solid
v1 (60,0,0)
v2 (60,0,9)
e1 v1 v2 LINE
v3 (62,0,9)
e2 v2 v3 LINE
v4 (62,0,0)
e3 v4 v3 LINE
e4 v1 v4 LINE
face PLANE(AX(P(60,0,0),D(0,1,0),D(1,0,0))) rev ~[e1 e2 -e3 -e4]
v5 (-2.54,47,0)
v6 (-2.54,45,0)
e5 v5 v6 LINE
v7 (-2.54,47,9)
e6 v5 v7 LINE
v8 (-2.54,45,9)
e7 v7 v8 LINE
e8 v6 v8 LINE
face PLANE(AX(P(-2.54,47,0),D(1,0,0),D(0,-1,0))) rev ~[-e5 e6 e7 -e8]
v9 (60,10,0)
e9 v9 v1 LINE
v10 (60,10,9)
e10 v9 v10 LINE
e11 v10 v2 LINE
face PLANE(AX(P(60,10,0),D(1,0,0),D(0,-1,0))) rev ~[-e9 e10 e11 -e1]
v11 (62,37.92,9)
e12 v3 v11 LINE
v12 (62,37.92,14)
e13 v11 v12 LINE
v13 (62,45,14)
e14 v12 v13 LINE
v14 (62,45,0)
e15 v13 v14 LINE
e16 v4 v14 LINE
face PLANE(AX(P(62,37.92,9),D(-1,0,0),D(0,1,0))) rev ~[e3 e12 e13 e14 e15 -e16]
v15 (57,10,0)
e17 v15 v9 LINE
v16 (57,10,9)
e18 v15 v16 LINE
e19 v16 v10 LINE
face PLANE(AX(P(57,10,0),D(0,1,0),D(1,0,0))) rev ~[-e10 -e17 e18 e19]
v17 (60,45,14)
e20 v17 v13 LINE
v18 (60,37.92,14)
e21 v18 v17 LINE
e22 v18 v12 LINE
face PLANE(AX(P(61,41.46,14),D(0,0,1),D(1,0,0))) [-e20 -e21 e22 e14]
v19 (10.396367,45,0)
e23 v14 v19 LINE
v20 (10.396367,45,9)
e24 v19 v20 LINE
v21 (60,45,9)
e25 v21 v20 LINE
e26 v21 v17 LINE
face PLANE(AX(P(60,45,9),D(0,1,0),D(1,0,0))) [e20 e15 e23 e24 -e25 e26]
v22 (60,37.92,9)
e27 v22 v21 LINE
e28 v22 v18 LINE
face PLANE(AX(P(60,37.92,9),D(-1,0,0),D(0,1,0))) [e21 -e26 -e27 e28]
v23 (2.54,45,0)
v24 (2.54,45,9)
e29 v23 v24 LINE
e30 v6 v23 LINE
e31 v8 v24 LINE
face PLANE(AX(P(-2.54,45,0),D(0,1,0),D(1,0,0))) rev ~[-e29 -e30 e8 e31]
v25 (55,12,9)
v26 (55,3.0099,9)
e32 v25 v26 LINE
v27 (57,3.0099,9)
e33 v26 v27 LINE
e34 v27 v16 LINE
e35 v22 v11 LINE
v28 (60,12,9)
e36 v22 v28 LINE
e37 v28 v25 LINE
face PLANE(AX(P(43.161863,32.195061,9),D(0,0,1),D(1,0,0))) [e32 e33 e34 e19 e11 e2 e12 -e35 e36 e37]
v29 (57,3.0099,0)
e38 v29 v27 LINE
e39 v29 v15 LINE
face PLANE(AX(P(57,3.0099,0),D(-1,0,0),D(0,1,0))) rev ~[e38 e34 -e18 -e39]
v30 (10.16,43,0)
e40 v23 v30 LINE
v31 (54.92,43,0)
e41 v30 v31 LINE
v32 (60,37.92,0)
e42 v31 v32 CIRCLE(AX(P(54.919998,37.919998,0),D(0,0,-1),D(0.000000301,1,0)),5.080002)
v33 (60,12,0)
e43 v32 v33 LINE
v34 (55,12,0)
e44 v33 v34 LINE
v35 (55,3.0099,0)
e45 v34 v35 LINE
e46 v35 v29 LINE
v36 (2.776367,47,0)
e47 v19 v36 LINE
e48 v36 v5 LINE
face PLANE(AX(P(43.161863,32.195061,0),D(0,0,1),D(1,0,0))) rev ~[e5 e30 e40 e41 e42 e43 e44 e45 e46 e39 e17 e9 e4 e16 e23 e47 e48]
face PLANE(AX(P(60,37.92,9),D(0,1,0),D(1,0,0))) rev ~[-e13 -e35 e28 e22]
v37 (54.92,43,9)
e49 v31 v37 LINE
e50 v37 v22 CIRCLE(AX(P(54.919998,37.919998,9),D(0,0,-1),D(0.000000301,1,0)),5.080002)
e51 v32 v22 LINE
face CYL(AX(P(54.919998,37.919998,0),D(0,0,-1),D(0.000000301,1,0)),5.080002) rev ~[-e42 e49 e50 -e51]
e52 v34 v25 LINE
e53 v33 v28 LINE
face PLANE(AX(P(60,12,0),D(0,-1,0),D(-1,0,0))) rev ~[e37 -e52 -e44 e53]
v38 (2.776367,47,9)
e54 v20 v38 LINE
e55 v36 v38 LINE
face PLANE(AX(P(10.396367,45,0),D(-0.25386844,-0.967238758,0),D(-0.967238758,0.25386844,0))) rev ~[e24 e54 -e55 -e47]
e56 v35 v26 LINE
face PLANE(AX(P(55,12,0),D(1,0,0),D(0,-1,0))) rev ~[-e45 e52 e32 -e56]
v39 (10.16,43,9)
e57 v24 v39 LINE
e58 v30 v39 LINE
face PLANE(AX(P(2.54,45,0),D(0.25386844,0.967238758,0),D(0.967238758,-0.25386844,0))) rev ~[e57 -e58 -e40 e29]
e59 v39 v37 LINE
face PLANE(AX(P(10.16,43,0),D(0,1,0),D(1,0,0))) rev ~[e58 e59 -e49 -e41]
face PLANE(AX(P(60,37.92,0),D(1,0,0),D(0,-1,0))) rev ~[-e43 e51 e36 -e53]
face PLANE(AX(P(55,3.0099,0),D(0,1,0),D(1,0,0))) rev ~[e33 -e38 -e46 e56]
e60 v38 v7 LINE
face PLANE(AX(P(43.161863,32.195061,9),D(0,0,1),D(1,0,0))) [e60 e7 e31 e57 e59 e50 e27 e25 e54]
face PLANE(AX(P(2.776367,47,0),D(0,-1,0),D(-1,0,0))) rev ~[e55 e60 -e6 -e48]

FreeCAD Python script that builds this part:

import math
import FreeCAD as App
import Part
import Sketcher

V = App.Vector


def add_polygon(sketch, points):
    """Adds a closed chain of lines whose ends are joined by coincident constraints."""
    first, n = sketch.GeometryCount, len(points)
    for a, b in zip(points, points[1:] + points[:1]):
        sketch.addGeometry(Part.LineSegment(App.Vector(*a, 0), App.Vector(*b, 0)), False)
    for i in range(n):
        sketch.addConstraint(Sketcher.Constraint("Coincident", first + i, 2, first + (i + 1) % n, 1))

doc = App.newDocument("Part")
body = doc.addObject("PartDesign::Body", "Body")

# Sketch on XY plane
sketch1 = body.newObject("Sketcher::SketchObject", "Sketch")
sketch1.AttachmentSupport = (doc.getObject("XY_Plane"), [""])
sketch1.MapMode = "FlatFace"
sketch1.addGeometry([
    Part.LineSegment(V(55, 12, 0), V(55, 3.0099, 0)),  # 0
    Part.LineSegment(V(55, 3.0099, 0), V(57, 3.0099, 0)),  # 1
    Part.LineSegment(V(57, 3.0099, 0), V(57, 10, 0)),  # 2
    Part.LineSegment(V(57, 10, 0), V(60, 10, 0)),  # 3
    Part.LineSegment(V(60, 10, 0), V(60, 0, 0)),  # 4
    Part.LineSegment(V(60, 0, 0), V(62, 0, 0)),  # 5
    Part.LineSegment(V(62, 0, 0), V(62, 45, 0)),  # 6
    Part.LineSegment(V(62, 45, 0), V(10.396367, 45, 0)),  # 7
    Part.LineSegment(V(10.396367, 45, 0), V(2.776367, 47, 0)),  # 8
    Part.LineSegment(V(2.776367, 47, 0), V(-2.54, 47, 0)),  # 9
    Part.LineSegment(V(-2.54, 47, 0), V(-2.54, 45, 0)),  # 10
    Part.LineSegment(V(-2.54, 45, 0), V(2.54, 45, 0)),  # 11
    Part.LineSegment(V(2.54, 45, 0), V(10.16, 43, 0)),  # 12
    Part.LineSegment(V(10.16, 43, 0), V(54.92, 43, 0)),  # 13
    Part.ArcOfCircle(Part.Circle(V(54.919998, 37.919998, 0), V(0, 0, 1), 5.080002), math.radians(0.000017), math.radians(89.999983)),  # 14
    Part.LineSegment(V(60, 37.92, 0), V(60, 12, 0)),  # 15
    Part.LineSegment(V(60, 12, 0), V(55, 12, 0)),  # 16
], False)
sketch1.addConstraint([
    Sketcher.Constraint("Coincident", 0, 2, 1, 1),
    Sketcher.Constraint("Coincident", 1, 2, 2, 1),
    Sketcher.Constraint("Coincident", 2, 2, 3, 1),
    Sketcher.Constraint("Coincident", 3, 2, 4, 1),
    Sketcher.Constraint("Coincident", 4, 2, 5, 1),
    Sketcher.Constraint("Coincident", 5, 2, 6, 1),
    Sketcher.Constraint("Coincident", 6, 2, 7, 1),
    Sketcher.Constraint("Coincident", 7, 2, 8, 1),
    Sketcher.Constraint("Coincident", 8, 2, 9, 1),
    Sketcher.Constraint("Coincident", 9, 2, 10, 1),
    Sketcher.Constraint("Coincident", 10, 2, 11, 1),
    Sketcher.Constraint("Coincident", 11, 2, 12, 1),
    Sketcher.Constraint("Coincident", 12, 2, 13, 1),
    Sketcher.Constraint("Tangent", 13, 2, 14, 2),
    Sketcher.Constraint("Tangent", 14, 1, 15, 1),
    Sketcher.Constraint("Coincident", 15, 2, 16, 1),
    Sketcher.Constraint("Coincident", 16, 2, 0, 1),
    Sketcher.Constraint("Vertical", 0),
    Sketcher.Constraint("Horizontal", 1),
    Sketcher.Constraint("Vertical", 2),
    Sketcher.Constraint("Horizontal", 3),
    Sketcher.Constraint("Vertical", 4),
    Sketcher.Constraint("Horizontal", 5),
    Sketcher.Constraint("Vertical", 6),
    Sketcher.Constraint("Horizontal", 7),
    Sketcher.Constraint("Horizontal", 9),
    Sketcher.Constraint("Vertical", 10),
    Sketcher.Constraint("Horizontal", 11),
    Sketcher.Constraint("Horizontal", 13),
    Sketcher.Constraint("Vertical", 15),
    Sketcher.Constraint("Horizontal", 16),
    Sketcher.Constraint("PointOnObject", 4, 2, -1),
    Sketcher.Constraint("Parallel", 8, 12),
    Sketcher.Constraint("Horizontal", 7, 2, 10, 2),
    Sketcher.Constraint("Vertical", 4, 2, 14, 1),
    Sketcher.Constraint("Equal", 1, 5),
    Sketcher.Constraint("Equal", 5, 10),
    Sketcher.Constraint("Equal", 8, 12),
    Sketcher.Constraint("DistanceX", 1, 1, 1, 2, 2.0),
    Sketcher.Constraint("DistanceX", 3, 1, 3, 2, 3.0),
    Sketcher.Constraint("DistanceY", 4, 2, 4, 1, 10.0),
    Sketcher.Constraint("DistanceY", 6, 1, 6, 2, 45.0),
    Sketcher.Constraint("Radius", 14, 5.080002),
    Sketcher.Constraint("DistanceX", -1, 1, 0, 2, 55.0),
    Sketcher.Constraint("DistanceY", -1, 1, 15, 2, 12.0),
    Sketcher.Constraint("DistanceX", 11, 1, 11, 2, 5.08),
    Sketcher.Constraint("DistanceX", 13, 1, 13, 2, 44.76),
    Sketcher.Constraint("DistanceX", 10, 2, 12, 2, 12.7),
    Sketcher.Constraint("DistanceY", 0, 2, 0, 1, 8.9901),
    Sketcher.Constraint("DistanceX", 7, 2, 7, 1, 51.603633),
])
pad1 = body.newObject("PartDesign::Pad", "Pad")
pad1.Profile = sketch1
pad1.Length = 9

# Sketch on XY plane
sketch2 = body.newObject("Sketcher::SketchObject", "Sketch001")
sketch2.AttachmentSupport = (doc.getObject("XY_Plane"), [""])
sketch2.MapMode = "FlatFace"
sketch2.AttachmentOffset = App.Placement(V(0, 0, 9), App.Rotation())
add_polygon(sketch2, [(60, 45), (60, 37.92), (62, 37.92), (62, 45)])  # lines 0-3
sketch2.addConstraint([
    Sketcher.Constraint("Vertical", 0),
    Sketcher.Constraint("Horizontal", 1),
    Sketcher.Constraint("Vertical", 2),
    Sketcher.Constraint("Horizontal", 3),
    Sketcher.Constraint("DistanceX", 1, 1, 1, 2, 2.0),
    Sketcher.Constraint("DistanceX", -1, 1, 0, 2, 60.0),
    Sketcher.Constraint("DistanceY", -1, 1, 2, 2, 45.0),
    Sketcher.Constraint("DistanceY", 0, 2, 0, 1, 7.08),
])
pad2 = body.newObject("PartDesign::Pad", "Pad001")
pad2.Profile = sketch2
pad2.Length = 5

doc.recompute()
